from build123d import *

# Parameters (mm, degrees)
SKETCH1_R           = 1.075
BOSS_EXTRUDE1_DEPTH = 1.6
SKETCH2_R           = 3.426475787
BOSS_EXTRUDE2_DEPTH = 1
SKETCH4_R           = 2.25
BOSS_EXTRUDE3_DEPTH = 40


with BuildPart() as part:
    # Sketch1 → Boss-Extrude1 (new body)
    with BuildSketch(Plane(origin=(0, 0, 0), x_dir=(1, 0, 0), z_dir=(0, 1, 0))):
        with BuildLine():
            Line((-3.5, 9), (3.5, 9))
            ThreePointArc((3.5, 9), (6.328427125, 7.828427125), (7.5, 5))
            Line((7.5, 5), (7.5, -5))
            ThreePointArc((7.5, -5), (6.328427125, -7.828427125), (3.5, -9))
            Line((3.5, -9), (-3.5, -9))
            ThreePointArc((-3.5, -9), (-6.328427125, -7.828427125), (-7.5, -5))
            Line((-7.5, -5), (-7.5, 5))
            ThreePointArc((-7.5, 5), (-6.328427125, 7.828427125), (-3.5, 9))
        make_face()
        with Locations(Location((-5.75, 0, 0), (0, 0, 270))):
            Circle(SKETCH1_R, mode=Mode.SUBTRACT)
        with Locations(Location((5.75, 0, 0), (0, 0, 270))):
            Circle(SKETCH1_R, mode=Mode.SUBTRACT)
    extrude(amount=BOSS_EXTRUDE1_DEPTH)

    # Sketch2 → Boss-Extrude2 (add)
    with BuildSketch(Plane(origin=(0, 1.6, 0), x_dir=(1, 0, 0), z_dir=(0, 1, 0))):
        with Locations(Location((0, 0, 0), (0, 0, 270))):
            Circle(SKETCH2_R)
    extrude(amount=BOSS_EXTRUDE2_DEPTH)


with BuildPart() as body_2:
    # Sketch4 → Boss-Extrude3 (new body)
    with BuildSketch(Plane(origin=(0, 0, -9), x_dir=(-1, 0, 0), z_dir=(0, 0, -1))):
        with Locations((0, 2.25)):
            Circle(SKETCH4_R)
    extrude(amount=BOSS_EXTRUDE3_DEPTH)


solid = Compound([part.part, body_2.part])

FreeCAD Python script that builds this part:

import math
import FreeCAD as App
import Part
import Sketcher
from FreeCAD import Vector
Q = App.Units.Quantity

doc = App.newDocument("Part")
body = doc.addObject("PartDesign::Body", "Body")

# Sketch on XZ plane
sketch1 = doc.addObject("Sketcher::SketchObject", "Sketch")
body.addObject(sketch1)
sketch1.AttachmentSupport = (doc.XZ_Plane, [""])
sketch1.MapMode = "FlatFace"
sketch1.addGeometry([
    Part.LineSegment(Vector(3.5, -9, 0), Vector(-3.5, -9, 0)),  # 0
    Part.ArcOfCircle(Part.Circle(Vector(-3.5, -5, 0), Vector(0, 0, 1), 4), math.radians(180), math.radians(270)),  # 1
    Part.LineSegment(Vector(-7.5, -5, 0), Vector(-7.5, 5, 0)),  # 2
    Part.ArcOfCircle(Part.Circle(Vector(-3.5, 5, 0), Vector(0, 0, 1), 4), math.radians(90), math.radians(180)),  # 3
    Part.LineSegment(Vector(-3.5, 9, 0), Vector(3.5, 9, 0)),  # 4
    Part.ArcOfCircle(Part.Circle(Vector(3.5, 5, 0), Vector(0, 0, 1), 4), math.radians(0), math.radians(90)),  # 5
    Part.LineSegment(Vector(7.5, 5, 0), Vector(7.5, -5, 0)),  # 6
    Part.ArcOfCircle(Part.Circle(Vector(3.5, -5, 0), Vector(0, 0, 1), 4), math.radians(-90), math.radians(0)),  # 7
    Part.Circle(Vector(5.75, 0, 0), Vector(0, 0, 1), 1.075),  # 8
    Part.Circle(Vector(-5.75, 0, 0), Vector(0, 0, 1), 1.075),  # 9
], False)
sketch1.addConstraint([
    Sketcher.Constraint("Tangent", 0, 2, 1, 2),
    Sketcher.Constraint("Tangent", 1, 1, 2, 1),
    Sketcher.Constraint("Tangent", 2, 2, 3, 2),
    Sketcher.Constraint("Tangent", 3, 1, 4, 1),
    Sketcher.Constraint("Tangent", 4, 2, 5, 2),
    Sketcher.Constraint("Tangent", 5, 1, 6, 1),
    Sketcher.Constraint("Tangent", 6, 2, 7, 2),
    Sketcher.Constraint("Tangent", 7, 1, 0, 1),
    Sketcher.Constraint("Horizontal", 0),
    Sketcher.Constraint("Vertical", 2),
    Sketcher.Constraint("Horizontal", 4),
    Sketcher.Constraint("Vertical", 6),
    Sketcher.Constraint("Equal", 1, 3),
    Sketcher.Constraint("Equal", 3, 5),
    Sketcher.Constraint("Equal", 5, 7),
    Sketcher.Constraint("Equal", 8, 9),
    Sketcher.Constraint("Symmetric", 1, 3, 5, 3, -1, 1),
    Sketcher.Constraint("Symmetric", 8, 3, 9, 3, -1, 1),
    Sketcher.Constraint("PointOnObject", 8, 3, -1),
    Sketcher.Constraint("Radius", 1, Q("4 mm")),
    Sketcher.Constraint("Diameter", 8, Q("2.15 mm")),
    Sketcher.Constraint("DistanceX", 0, 2, 0, 1, Q("7 mm")),
    Sketcher.Constraint("DistanceY", 2, 1, 2, 2, Q("10 mm")),
    Sketcher.Constraint("DistanceX", 9, 3, 8, 3, Q("11.5 mm")),
])
pad1 = doc.addObject("PartDesign::Pad", "Pad")
body.addObject(pad1)
pad1.Profile = sketch1
pad1.Length = 1.6
pad1.Reversed = True

# Sketch on XZ plane
sketch2 = doc.addObject("Sketcher::SketchObject", "Sketch001")
body.addObject(sketch2)
sketch2.AttachmentSupport = (doc.XZ_Plane, [""])
sketch2.MapMode = "FlatFace"
sketch2.AttachmentOffset = App.Placement(Vector(0, 0, -1.6), App.Rotation())
sketch2.addGeometry(Part.Circle(Vector(0, 0, 0), Vector(0, 0, 1), 3.426476), False)
sketch2.addConstraint([
    Sketcher.Constraint("Coincident", 0, 3, -1, 1),
    Sketcher.Constraint("Diameter", 0, Q("6.852952 mm")),
])
pad2 = doc.addObject("PartDesign::Pad", "Pad001")
body.addObject(pad2)
pad2.Profile = sketch2
pad2.Length = 1
pad2.Reversed = True
body2 = doc.addObject("PartDesign::Body", "Body001")

# Sketch on XY plane
sketch3 = doc.addObject("Sketcher::SketchObject", "Sketch002")
body2.addObject(sketch3)
sketch3.AttachmentSupport = (doc.getObject("XY_Plane001"), [""])
sketch3.MapMode = "FlatFace"
sketch3.AttachmentOffset = App.Placement(Vector(0, 0, -9), App.Rotation())
sketch3.addGeometry(Part.Circle(Vector(0, 2.25, 0), Vector(0, 0, 1), 2.25), False)
sketch3.addConstraint([
    Sketcher.Constraint("PointOnObject", 0, 3, -2),
    Sketcher.Constraint("Diameter", 0, Q("4.5 mm")),
    Sketcher.Constraint("DistanceY", -1, 1, 0, 3, Q("2.25 mm")),
])
pad3 = doc.addObject("PartDesign::Pad", "Pad002")
body2.addObject(pad3)
pad3.Profile = sketch3
pad3.Length = 40
pad3.Reversed = True

doc.recompute()
